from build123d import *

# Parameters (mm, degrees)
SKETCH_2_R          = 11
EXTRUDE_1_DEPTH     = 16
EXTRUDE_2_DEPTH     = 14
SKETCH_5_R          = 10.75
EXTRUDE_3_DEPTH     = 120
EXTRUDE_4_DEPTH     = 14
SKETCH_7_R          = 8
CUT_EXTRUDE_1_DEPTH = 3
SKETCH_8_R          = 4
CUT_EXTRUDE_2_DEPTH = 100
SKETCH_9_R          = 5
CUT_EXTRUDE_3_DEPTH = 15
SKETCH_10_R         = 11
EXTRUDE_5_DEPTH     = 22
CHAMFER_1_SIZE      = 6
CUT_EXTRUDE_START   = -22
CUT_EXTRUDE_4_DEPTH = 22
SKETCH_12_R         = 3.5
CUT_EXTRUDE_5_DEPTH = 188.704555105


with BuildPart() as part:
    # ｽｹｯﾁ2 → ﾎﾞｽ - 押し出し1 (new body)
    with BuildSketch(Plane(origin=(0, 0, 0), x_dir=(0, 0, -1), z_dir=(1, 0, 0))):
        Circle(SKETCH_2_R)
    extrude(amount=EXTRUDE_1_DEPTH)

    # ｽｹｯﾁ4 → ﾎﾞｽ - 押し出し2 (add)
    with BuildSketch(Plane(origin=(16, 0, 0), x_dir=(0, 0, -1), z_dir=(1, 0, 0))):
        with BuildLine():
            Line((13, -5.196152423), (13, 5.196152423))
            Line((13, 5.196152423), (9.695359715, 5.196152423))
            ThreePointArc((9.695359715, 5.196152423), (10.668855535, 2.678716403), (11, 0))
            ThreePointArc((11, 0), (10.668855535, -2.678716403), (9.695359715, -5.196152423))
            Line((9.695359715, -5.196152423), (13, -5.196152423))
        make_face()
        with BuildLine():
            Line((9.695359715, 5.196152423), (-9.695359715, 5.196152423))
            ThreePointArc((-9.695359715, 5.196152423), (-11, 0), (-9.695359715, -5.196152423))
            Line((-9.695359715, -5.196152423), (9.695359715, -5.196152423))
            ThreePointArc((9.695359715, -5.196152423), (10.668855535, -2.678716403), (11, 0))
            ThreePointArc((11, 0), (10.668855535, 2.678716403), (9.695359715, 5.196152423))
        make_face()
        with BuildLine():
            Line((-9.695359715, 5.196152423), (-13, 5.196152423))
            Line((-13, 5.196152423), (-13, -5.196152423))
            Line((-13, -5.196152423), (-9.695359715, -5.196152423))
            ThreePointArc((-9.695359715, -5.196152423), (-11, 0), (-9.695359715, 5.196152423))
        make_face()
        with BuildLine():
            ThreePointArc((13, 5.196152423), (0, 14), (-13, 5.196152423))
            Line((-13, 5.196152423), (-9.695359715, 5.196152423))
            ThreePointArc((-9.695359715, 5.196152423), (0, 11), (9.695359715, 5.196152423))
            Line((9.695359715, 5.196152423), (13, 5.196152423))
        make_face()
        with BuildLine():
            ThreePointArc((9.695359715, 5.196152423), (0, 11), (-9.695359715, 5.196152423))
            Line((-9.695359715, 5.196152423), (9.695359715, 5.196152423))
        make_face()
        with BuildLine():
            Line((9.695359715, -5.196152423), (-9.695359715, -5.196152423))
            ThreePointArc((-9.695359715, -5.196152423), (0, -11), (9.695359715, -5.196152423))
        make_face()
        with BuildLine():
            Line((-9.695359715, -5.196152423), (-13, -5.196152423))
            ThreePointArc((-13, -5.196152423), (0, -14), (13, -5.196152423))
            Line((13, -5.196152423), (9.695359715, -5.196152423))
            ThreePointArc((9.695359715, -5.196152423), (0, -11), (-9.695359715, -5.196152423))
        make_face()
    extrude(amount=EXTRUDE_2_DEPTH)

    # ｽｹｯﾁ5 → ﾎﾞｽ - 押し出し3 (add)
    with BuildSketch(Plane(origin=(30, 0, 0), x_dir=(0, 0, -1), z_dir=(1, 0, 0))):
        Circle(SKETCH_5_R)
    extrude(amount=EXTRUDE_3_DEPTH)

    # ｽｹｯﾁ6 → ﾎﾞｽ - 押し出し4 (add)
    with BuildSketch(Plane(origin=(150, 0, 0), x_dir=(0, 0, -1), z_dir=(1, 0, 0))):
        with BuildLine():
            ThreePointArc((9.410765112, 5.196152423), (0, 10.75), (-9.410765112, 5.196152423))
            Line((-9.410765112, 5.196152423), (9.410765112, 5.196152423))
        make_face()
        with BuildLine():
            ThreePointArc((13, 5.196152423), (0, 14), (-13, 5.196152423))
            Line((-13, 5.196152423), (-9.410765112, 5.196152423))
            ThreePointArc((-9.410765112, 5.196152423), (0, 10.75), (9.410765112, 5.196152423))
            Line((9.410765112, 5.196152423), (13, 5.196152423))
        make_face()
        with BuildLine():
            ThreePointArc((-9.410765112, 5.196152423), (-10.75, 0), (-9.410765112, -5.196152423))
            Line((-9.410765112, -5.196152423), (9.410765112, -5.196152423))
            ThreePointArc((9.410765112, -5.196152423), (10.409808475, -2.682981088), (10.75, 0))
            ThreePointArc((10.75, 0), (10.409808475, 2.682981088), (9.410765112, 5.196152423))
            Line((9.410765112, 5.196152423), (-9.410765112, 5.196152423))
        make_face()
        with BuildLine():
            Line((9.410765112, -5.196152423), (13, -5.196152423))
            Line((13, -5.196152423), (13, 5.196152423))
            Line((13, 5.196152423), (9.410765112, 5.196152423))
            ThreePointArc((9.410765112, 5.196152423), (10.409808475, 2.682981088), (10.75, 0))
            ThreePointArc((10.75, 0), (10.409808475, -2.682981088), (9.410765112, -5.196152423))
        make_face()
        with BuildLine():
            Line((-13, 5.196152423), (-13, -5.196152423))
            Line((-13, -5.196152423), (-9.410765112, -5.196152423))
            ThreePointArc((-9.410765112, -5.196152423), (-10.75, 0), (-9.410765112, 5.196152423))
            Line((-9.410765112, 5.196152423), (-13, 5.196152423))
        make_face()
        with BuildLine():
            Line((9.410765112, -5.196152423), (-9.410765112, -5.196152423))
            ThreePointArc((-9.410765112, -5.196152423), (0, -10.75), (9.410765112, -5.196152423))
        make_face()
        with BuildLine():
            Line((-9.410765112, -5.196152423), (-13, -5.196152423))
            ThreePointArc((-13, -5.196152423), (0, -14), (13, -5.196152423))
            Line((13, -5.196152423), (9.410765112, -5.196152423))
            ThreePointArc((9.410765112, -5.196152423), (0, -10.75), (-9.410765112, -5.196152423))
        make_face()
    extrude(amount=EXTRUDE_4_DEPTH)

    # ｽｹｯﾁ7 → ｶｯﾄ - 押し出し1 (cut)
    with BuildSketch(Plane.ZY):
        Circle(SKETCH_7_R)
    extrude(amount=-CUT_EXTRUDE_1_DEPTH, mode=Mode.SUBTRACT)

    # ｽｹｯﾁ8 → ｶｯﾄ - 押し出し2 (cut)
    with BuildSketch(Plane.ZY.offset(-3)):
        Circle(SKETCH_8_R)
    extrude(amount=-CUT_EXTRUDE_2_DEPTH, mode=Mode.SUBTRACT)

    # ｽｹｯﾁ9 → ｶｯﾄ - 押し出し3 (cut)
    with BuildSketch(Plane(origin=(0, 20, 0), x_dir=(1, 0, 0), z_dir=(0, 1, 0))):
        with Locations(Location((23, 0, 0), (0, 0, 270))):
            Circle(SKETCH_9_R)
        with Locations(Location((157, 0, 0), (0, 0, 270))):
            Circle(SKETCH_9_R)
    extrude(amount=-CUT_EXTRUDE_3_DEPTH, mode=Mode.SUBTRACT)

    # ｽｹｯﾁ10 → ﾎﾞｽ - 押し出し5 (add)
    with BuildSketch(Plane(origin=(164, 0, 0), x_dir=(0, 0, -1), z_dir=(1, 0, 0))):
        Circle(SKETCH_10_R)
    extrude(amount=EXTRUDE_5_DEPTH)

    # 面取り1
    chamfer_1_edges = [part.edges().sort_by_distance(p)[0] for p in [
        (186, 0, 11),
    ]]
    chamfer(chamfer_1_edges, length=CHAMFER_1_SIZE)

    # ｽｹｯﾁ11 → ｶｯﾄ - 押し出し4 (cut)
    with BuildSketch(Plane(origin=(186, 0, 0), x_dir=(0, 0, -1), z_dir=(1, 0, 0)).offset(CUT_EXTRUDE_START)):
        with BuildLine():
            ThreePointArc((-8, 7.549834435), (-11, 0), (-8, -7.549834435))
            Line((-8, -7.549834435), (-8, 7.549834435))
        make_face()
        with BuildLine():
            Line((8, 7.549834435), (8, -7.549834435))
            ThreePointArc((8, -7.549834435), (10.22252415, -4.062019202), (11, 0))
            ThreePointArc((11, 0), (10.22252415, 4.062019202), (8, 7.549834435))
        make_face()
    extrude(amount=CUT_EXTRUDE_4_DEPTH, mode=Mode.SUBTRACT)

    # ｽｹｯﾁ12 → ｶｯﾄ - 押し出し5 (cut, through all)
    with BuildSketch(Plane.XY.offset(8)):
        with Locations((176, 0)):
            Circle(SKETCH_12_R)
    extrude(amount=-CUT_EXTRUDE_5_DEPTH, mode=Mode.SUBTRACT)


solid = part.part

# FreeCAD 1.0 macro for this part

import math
import FreeCAD as App
import Part
import Sketcher


def edges_at(feature, points):
    """Names of the edges that pass closest to the given points."""
    edges = feature.Shape.Edges
    near = lambda p: min(range(len(edges)), key=lambda i: edges[i].distToShape(Part.Vertex(*p))[0])
    return sorted({f"Edge{near(p) + 1}" for p in points})

doc = App.newDocument("Part")
body = doc.addObject("PartDesign::Body", "Body")

sketch1 = doc.addObject("Sketcher::SketchObject", "Sketch")
body.addObject(sketch1)
sketch1.AttachmentSupport = (doc.YZ_Plane, [""])
sketch1.MapMode = "FlatFace"
sketch1.addGeometry(Part.Circle(App.Vector(0, 0, 0), App.Vector(0, 0, 1), 11), False)
sketch1.addConstraint([
    Sketcher.Constraint("Coincident", 0, 3, -1, 1),
    Sketcher.Constraint("Diameter", 0, 22.0),
])
pad1 = doc.addObject("PartDesign::Pad", "Pad")
body.addObject(pad1)
pad1.Profile = sketch1
pad1.Length = 16

sketch2 = doc.addObject("Sketcher::SketchObject", "Sketch001")
body.addObject(sketch2)
sketch2.AttachmentSupport = (doc.YZ_Plane, [""])
sketch2.MapMode = "FlatFace"
sketch2.AttachmentOffset = App.Placement(App.Vector(0, 0, 16), App.Rotation())
sketch2.addGeometry([
    Part.LineSegment(App.Vector(-5, -13, 0), App.Vector(5, -13, 0)),
    Part.ArcOfCircle(Part.Circle(App.Vector(0, 0, 0), App.Vector(0, 0, 1), 14), math.radians(-68), math.radians(68)),
    Part.LineSegment(App.Vector(5, 13, 0), App.Vector(-5, 13, 0)),
    Part.ArcOfCircle(Part.Circle(App.Vector(0, 0, 0), App.Vector(0, 0, 1), 14), math.radians(112), math.radians(248)),
], False)
sketch2.addConstraint([
    Sketcher.Constraint("Coincident", 0, 2, 1, 1),
    Sketcher.Constraint("Coincident", 1, 2, 2, 1),
    Sketcher.Constraint("Coincident", 2, 2, 3, 1),
    Sketcher.Constraint("Coincident", 3, 2, 0, 1),
    Sketcher.Constraint("Horizontal", 0),
    Sketcher.Constraint("Horizontal", 2),
    Sketcher.Constraint("Coincident", 1, 3, -1, 1),
    Sketcher.Constraint("Coincident", 3, 3, -1, 1),
    Sketcher.Constraint("Equal", 1, 3),
    Sketcher.Constraint("Vertical", 0, 2, 1, 2),
    Sketcher.Constraint("Radius", 1, 14.0),
    Sketcher.Constraint("DistanceY", 0, 2, -1, 1, 13.0),
])
pad2 = doc.addObject("PartDesign::Pad", "Pad001")
body.addObject(pad2)
pad2.Profile = sketch2
pad2.Length = 14

sketch3 = doc.addObject("Sketcher::SketchObject", "Sketch002")
body.addObject(sketch3)
sketch3.AttachmentSupport = (doc.YZ_Plane, [""])
sketch3.MapMode = "FlatFace"
sketch3.AttachmentOffset = App.Placement(App.Vector(0, 0, 30), App.Rotation())
sketch3.addGeometry(Part.Circle(App.Vector(0, 0, 0), App.Vector(0, 0, 1), 11), False)
sketch3.addConstraint([
    Sketcher.Constraint("Coincident", 0, 3, -1, 1),
    Sketcher.Constraint("Diameter", 0, 21.5),
])
pad3 = doc.addObject("PartDesign::Pad", "Pad002")
body.addObject(pad3)
pad3.Profile = sketch3
pad3.Length = 120

sketch4 = doc.addObject("Sketcher::SketchObject", "Sketch003")
body.addObject(sketch4)
sketch4.AttachmentSupport = (doc.YZ_Plane, [""])
sketch4.MapMode = "FlatFace"
sketch4.AttachmentOffset = App.Placement(App.Vector(0, 0, 150), App.Rotation())
sketch4.addGeometry([
    Part.ArcOfCircle(Part.Circle(App.Vector(0, 0, 0), App.Vector(0, 0, 1), 14), math.radians(-68), math.radians(68)),
    Part.LineSegment(App.Vector(5, 13, 0), App.Vector(-5, 13, 0)),
    Part.ArcOfCircle(Part.Circle(App.Vector(0, 0, 0), App.Vector(0, 0, 1), 14), math.radians(112), math.radians(248)),
    Part.LineSegment(App.Vector(-5, -13, 0), App.Vector(5, -13, 0)),
], False)
sketch4.addConstraint([
    Sketcher.Constraint("Coincident", 0, 2, 1, 1),
    Sketcher.Constraint("Coincident", 1, 2, 2, 1),
    Sketcher.Constraint("Coincident", 2, 2, 3, 1),
    Sketcher.Constraint("Coincident", 3, 2, 0, 1),
    Sketcher.Constraint("Horizontal", 1),
    Sketcher.Constraint("Horizontal", 3),
    Sketcher.Constraint("Coincident", 0, 3, -1, 1),
    Sketcher.Constraint("Coincident", 2, 3, -1, 1),
    Sketcher.Constraint("Equal", 0, 2),
    Sketcher.Constraint("Vertical", 1, 2, 2, 2),
    Sketcher.Constraint("Radius", 0, 14.0),
    Sketcher.Constraint("DistanceY", -1, 1, 0, 2, 13.0),
])
pad4 = doc.addObject("PartDesign::Pad", "Pad003")
body.addObject(pad4)
pad4.Profile = sketch4
pad4.Length = 14

sketch5 = doc.addObject("Sketcher::SketchObject", "Sketch004")
body.addObject(sketch5)
sketch5.AttachmentSupport = (doc.YZ_Plane, [""])
sketch5.MapMode = "FlatFace"
sketch5.addGeometry(Part.Circle(App.Vector(0, 0, 0), App.Vector(0, 0, 1), 8), False)
sketch5.addConstraint([
    Sketcher.Constraint("Coincident", 0, 3, -1, 1),
    Sketcher.Constraint("Diameter", 0, 16.0),
])
pocket1 = doc.addObject("PartDesign::Pocket", "Pocket")
body.addObject(pocket1)
pocket1.Profile = sketch5
pocket1.Length = 3
pocket1.Reversed = True

sketch6 = doc.addObject("Sketcher::SketchObject", "Sketch005")
body.addObject(sketch6)
sketch6.AttachmentSupport = (doc.YZ_Plane, [""])
sketch6.MapMode = "FlatFace"
sketch6.AttachmentOffset = App.Placement(App.Vector(0, 0, 3), App.Rotation())
sketch6.addGeometry(Part.Circle(App.Vector(0, 0, 0), App.Vector(0, 0, 1), 4), False)
sketch6.addConstraint([
    Sketcher.Constraint("Coincident", 0, 3, -1, 1),
    Sketcher.Constraint("Diameter", 0, 8.0),
])
pocket2 = doc.addObject("PartDesign::Pocket", "Pocket001")
body.addObject(pocket2)
pocket2.Profile = sketch6
pocket2.Length = 100
pocket2.Reversed = True

sketch7 = doc.addObject("Sketcher::SketchObject", "Sketch006")
body.addObject(sketch7)
sketch7.AttachmentSupport = (doc.XZ_Plane, [""])
sketch7.MapMode = "FlatFace"
sketch7.AttachmentOffset = App.Placement(App.Vector(0, 0, -20), App.Rotation())
sketch7.addGeometry([
    Part.Circle(App.Vector(23, 0, 0), App.Vector(0, 0, 1), 5),
    Part.Circle(App.Vector(157, 0, 0), App.Vector(0, 0, 1), 5),
], False)
sketch7.addConstraint([
    Sketcher.Constraint("Equal", 0, 1),
    Sketcher.Constraint("PointOnObject", 0, 3, -1),
    Sketcher.Constraint("PointOnObject", 1, 3, -1),
    Sketcher.Constraint("Diameter", 0, 10.0),
    Sketcher.Constraint("DistanceX", -1, 1, 0, 3, 23.0),
    Sketcher.Constraint("DistanceX", -1, 1, 1, 3, 157.0),
])
pocket3 = doc.addObject("PartDesign::Pocket", "Pocket002")
body.addObject(pocket3)
pocket3.Profile = sketch7
pocket3.Length = 15
pocket3.Reversed = True

sketch8 = doc.addObject("Sketcher::SketchObject", "Sketch007")
body.addObject(sketch8)
sketch8.AttachmentSupport = (doc.YZ_Plane, [""])
sketch8.MapMode = "FlatFace"
sketch8.AttachmentOffset = App.Placement(App.Vector(0, 0, 164), App.Rotation())
sketch8.addGeometry(Part.Circle(App.Vector(0, 0, 0), App.Vector(0, 0, 1), 11), False)
sketch8.addConstraint([
    Sketcher.Constraint("Coincident", 0, 3, -1, 1),
    Sketcher.Constraint("Diameter", 0, 22.0),
])
pad5 = doc.addObject("PartDesign::Pad", "Pad004")
body.addObject(pad5)
pad5.Profile = sketch8
pad5.Length = 22
doc.recompute()

chamfer = doc.addObject("PartDesign::Chamfer", "Chamfer")
body.addObject(chamfer)
chamfer.Base = (pad5, edges_at(pad5, [(186, 0, 11)]))
chamfer.Size = 6

sketch9 = doc.addObject("Sketcher::SketchObject", "Sketch008")
body.addObject(sketch9)
sketch9.AttachmentSupport = (doc.YZ_Plane, [""])
sketch9.MapMode = "FlatFace"
sketch9.AttachmentOffset = App.Placement(App.Vector(0, 0, 164), App.Rotation())
sketch9.addGeometry([
    Part.ArcOfCircle(Part.Circle(App.Vector(0, 0, 0), App.Vector(0, 0, 1), 11), math.radians(47), math.radians(133)),
    Part.LineSegment(App.Vector(-8, 8, 0), App.Vector(8, 8, 0)),
    Part.LineSegment(App.Vector(8, -8, 0), App.Vector(-8, -8, 0)),
    Part.ArcOfCircle(Part.Circle(App.Vector(0, 0, 0), App.Vector(0, 0, 1), 11), math.radians(-133), math.radians(-90)),
    Part.ArcOfCircle(Part.Circle(App.Vector(0, 0, 0), App.Vector(0, 0, 1), 11), math.radians(-90), math.radians(-47)),
], False)
sketch9.addConstraint([
    Sketcher.Constraint("Coincident", 0, 1, 1, 2),
    Sketcher.Constraint("Coincident", 1, 1, 0, 2),
    Sketcher.Constraint("Coincident", 2, 2, 3, 1),
    Sketcher.Constraint("Tangent", 3, 2, 4, 1),
    Sketcher.Constraint("Coincident", 4, 2, 2, 1),
    Sketcher.Constraint("Horizontal", 1),
    Sketcher.Constraint("Horizontal", 2),
    Sketcher.Constraint("Coincident", 0, 3, -1, 1),
    Sketcher.Constraint("Coincident", 3, 3, -1, 1),
    Sketcher.Constraint("Equal", 0, 3),
    Sketcher.Constraint("Equal", 3, 4),
    Sketcher.Constraint("PointOnObject", 3, 2, -2),
    Sketcher.Constraint("Vertical", 1, 1, 2, 2),
    Sketcher.Constraint("Radius", 0, 11.0),
    Sketcher.Constraint("DistanceY", -1, 1, 0, 1, 8.0),
])
pocket4 = doc.addObject("PartDesign::Pocket", "Pocket003")
body.addObject(pocket4)
pocket4.Profile = sketch9
pocket4.Length = 22
pocket4.Reversed = True

sketch10 = doc.addObject("Sketcher::SketchObject", "Sketch009")
body.addObject(sketch10)
sketch10.AttachmentSupport = (doc.XY_Plane, [""])
sketch10.MapMode = "FlatFace"
sketch10.AttachmentOffset = App.Placement(App.Vector(0, 0, 8), App.Rotation())
sketch10.addGeometry(Part.Circle(App.Vector(176, 0, 0), App.Vector(0, 0, 1), 3.5), False)
sketch10.addConstraint([
    Sketcher.Constraint("PointOnObject", 0, 3, -1),
    Sketcher.Constraint("Diameter", 0, 7.0),
    Sketcher.Constraint("DistanceX", -1, 1, 0, 3, 176.0),
])
pocket5 = doc.addObject("PartDesign::Pocket", "Pocket004")
body.addObject(pocket5)
pocket5.Profile = sketch10
pocket5.Type = "ThroughAll"

doc.recompute()
